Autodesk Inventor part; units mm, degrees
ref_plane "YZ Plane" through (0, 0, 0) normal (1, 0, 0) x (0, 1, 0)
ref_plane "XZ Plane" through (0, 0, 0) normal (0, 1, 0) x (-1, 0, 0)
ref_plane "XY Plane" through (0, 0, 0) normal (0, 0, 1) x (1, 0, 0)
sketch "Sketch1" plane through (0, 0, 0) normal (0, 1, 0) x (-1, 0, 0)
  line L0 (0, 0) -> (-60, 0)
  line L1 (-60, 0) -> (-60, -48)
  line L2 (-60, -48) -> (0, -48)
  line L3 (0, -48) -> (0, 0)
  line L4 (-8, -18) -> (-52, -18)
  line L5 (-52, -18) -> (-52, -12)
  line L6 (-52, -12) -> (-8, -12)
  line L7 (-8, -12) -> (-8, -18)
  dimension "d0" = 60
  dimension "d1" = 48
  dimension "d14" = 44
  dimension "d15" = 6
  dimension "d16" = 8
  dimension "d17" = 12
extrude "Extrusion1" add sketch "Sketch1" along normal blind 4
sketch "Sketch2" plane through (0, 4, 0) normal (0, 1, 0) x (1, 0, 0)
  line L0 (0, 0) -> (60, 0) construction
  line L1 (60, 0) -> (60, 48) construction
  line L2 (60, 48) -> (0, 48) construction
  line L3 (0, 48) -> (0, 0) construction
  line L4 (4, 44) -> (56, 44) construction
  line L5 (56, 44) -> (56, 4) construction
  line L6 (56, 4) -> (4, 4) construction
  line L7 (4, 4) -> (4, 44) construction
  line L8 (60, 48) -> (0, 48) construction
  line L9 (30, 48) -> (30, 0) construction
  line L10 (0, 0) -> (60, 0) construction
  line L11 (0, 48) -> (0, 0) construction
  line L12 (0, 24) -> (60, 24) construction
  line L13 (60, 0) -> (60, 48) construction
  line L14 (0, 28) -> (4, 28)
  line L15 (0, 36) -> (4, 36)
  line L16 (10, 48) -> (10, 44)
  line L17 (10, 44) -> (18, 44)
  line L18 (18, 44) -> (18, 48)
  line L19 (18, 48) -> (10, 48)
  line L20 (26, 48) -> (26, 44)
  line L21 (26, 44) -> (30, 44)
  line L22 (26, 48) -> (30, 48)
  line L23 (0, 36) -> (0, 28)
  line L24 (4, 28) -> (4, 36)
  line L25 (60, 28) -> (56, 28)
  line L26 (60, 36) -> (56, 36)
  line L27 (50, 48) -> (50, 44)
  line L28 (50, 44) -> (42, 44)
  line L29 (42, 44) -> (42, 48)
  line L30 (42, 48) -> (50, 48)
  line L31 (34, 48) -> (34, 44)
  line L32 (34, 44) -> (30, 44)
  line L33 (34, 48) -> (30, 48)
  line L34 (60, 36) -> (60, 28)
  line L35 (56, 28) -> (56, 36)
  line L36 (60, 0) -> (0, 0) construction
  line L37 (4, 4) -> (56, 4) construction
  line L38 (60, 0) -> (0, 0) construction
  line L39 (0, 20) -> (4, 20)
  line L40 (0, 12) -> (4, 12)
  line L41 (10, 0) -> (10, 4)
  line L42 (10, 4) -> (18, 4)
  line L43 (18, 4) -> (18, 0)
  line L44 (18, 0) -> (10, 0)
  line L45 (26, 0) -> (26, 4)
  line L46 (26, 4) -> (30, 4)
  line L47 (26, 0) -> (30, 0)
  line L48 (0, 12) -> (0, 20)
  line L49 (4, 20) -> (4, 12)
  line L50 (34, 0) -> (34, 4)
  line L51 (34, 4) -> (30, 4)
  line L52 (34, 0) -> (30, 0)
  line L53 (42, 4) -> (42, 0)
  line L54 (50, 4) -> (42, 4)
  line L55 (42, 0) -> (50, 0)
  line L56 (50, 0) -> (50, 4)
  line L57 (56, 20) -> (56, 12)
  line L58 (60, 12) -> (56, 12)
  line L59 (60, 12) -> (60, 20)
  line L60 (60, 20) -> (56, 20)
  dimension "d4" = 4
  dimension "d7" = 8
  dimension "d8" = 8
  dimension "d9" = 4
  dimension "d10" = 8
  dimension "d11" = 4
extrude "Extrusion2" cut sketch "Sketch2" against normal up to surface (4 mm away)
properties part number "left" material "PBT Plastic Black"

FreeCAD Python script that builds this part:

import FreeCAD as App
import Part
import Sketcher
from FreeCAD import Vector

doc = App.newDocument("Part")
body = doc.addObject("PartDesign::Body", "Body")

# Sketch on XZ plane
sketch1 = body.newObject("Sketcher::SketchObject", "Sketch")
sketch1.AttachmentSupport = (doc.getObject("XZ_Plane"), [""])
sketch1.MapMode = "FlatFace"
sketch1.addGeometry([
    Part.LineSegment(Vector(0, -48, 0), Vector(0, 0, 0)),  # 0
    Part.LineSegment(Vector(0, 0, 0), Vector(60, 0, 0)),  # 1
    Part.LineSegment(Vector(60, 0, 0), Vector(60, -48, 0)),  # 2
    Part.LineSegment(Vector(60, -48, 0), Vector(0, -48, 0)),  # 3
    Part.LineSegment(Vector(8, -12, 0), Vector(8, -18, 0)),  # 4
    Part.LineSegment(Vector(8, -18, 0), Vector(52, -18, 0)),  # 5
    Part.LineSegment(Vector(52, -18, 0), Vector(52, -12, 0)),  # 6
    Part.LineSegment(Vector(52, -12, 0), Vector(8, -12, 0)),  # 7
], False)
sketch1.addConstraint([
    Sketcher.Constraint("Coincident", 0, 2, 1, 1),
    Sketcher.Constraint("Coincident", 1, 2, 2, 1),
    Sketcher.Constraint("Coincident", 2, 2, 3, 1),
    Sketcher.Constraint("Coincident", 3, 2, 0, 1),
    Sketcher.Constraint("Coincident", 4, 2, 5, 1),
    Sketcher.Constraint("Coincident", 5, 2, 6, 1),
    Sketcher.Constraint("Coincident", 6, 2, 7, 1),
    Sketcher.Constraint("Coincident", 7, 2, 4, 1),
    Sketcher.Constraint("Vertical", 0),
    Sketcher.Constraint("Horizontal", 1),
    Sketcher.Constraint("Vertical", 2),
    Sketcher.Constraint("Horizontal", 3),
    Sketcher.Constraint("Vertical", 4),
    Sketcher.Constraint("Horizontal", 5),
    Sketcher.Constraint("Vertical", 6),
    Sketcher.Constraint("Horizontal", 7),
    Sketcher.Constraint("Coincident", 0, 2, -1, 1),
    Sketcher.Constraint("DistanceX", 1, 1, 1, 2, 60.0),
    Sketcher.Constraint("DistanceX", 5, 1, 5, 2, 44.0),
    Sketcher.Constraint("DistanceY", 0, 1, 0, 2, 48.0),
    Sketcher.Constraint("DistanceY", 4, 2, 4, 1, 6.0),
    Sketcher.Constraint("DistanceX", -1, 1, 4, 2, 8.0),
    Sketcher.Constraint("DistanceY", 6, 2, -1, 1, 12.0),
])
pad1 = body.newObject("PartDesign::Pad", "Pad")
pad1.Profile = sketch1
pad1.Length = 4
pad1.Reversed = True

# Sketch on XZ plane
sketch2 = body.newObject("Sketcher::SketchObject", "Sketch001")
sketch2.AttachmentSupport = (doc.getObject("XZ_Plane"), [""])
sketch2.MapMode = "FlatFace"
sketch2.AttachmentOffset = App.Placement(Vector(0, 0, -4), App.Rotation())
sketch2.addGeometry([
    Part.LineSegment(Vector(0, -36, 0), Vector(0, -28, 0)),  # 0
    Part.LineSegment(Vector(0, -28, 0), Vector(4, -28, 0)),  # 1
    Part.LineSegment(Vector(4, -28, 0), Vector(4, -36, 0)),  # 2
    Part.LineSegment(Vector(4, -36, 0), Vector(0, -36, 0)),  # 3
    Part.LineSegment(Vector(18, -48, 0), Vector(10, -48, 0)),  # 4
    Part.LineSegment(Vector(10, -48, 0), Vector(10, -44, 0)),  # 5
    Part.LineSegment(Vector(10, -44, 0), Vector(18, -44, 0)),  # 6
    Part.LineSegment(Vector(18, -44, 0), Vector(18, -48, 0)),  # 7
    Part.LineSegment(Vector(34, -48, 0), Vector(26, -48, 0)),  # 8
    Part.LineSegment(Vector(26, -48, 0), Vector(26, -44, 0)),  # 9
    Part.LineSegment(Vector(26, -44, 0), Vector(34, -44, 0)),  # 10
    Part.LineSegment(Vector(34, -44, 0), Vector(34, -48, 0)),  # 11
    Part.LineSegment(Vector(56, -28, 0), Vector(60, -28, 0)),  # 12
    Part.LineSegment(Vector(60, -28, 0), Vector(60, -36, 0)),  # 13
    Part.LineSegment(Vector(60, -36, 0), Vector(56, -36, 0)),  # 14
    Part.LineSegment(Vector(56, -36, 0), Vector(56, -28, 0)),  # 15
    Part.LineSegment(Vector(50, -44, 0), Vector(50, -48, 0)),  # 16
    Part.LineSegment(Vector(50, -48, 0), Vector(42, -48, 0)),  # 17
    Part.LineSegment(Vector(42, -48, 0), Vector(42, -44, 0)),  # 18
    Part.LineSegment(Vector(42, -44, 0), Vector(50, -44, 0)),  # 19
    Part.LineSegment(Vector(4, -20, 0), Vector(0, -20, 0)),  # 20
    Part.LineSegment(Vector(0, -20, 0), Vector(0, -12, 0)),  # 21
    Part.LineSegment(Vector(0, -12, 0), Vector(4, -12, 0)),  # 22
    Part.LineSegment(Vector(4, -12, 0), Vector(4, -20, 0)),  # 23
    Part.LineSegment(Vector(10, -4, 0), Vector(10, 0, 0)),  # 24
    Part.LineSegment(Vector(10, 0, 0), Vector(18, 0, 0)),  # 25
    Part.LineSegment(Vector(18, 0, 0), Vector(18, -4, 0)),  # 26
    Part.LineSegment(Vector(18, -4, 0), Vector(10, -4, 0)),  # 27
    Part.LineSegment(Vector(26, -4, 0), Vector(26, 0, 0)),  # 28
    Part.LineSegment(Vector(26, 0, 0), Vector(34, 0, 0)),  # 29
    Part.LineSegment(Vector(34, 0, 0), Vector(34, -4, 0)),  # 30
    Part.LineSegment(Vector(34, -4, 0), Vector(26, -4, 0)),  # 31
    Part.LineSegment(Vector(50, -4, 0), Vector(42, -4, 0)),  # 32
    Part.LineSegment(Vector(42, -4, 0), Vector(42, 0, 0)),  # 33
    Part.LineSegment(Vector(42, 0, 0), Vector(50, 0, 0)),  # 34
    Part.LineSegment(Vector(50, 0, 0), Vector(50, -4, 0)),  # 35
    Part.LineSegment(Vector(60, -20, 0), Vector(56, -20, 0)),  # 36
    Part.LineSegment(Vector(56, -20, 0), Vector(56, -12, 0)),  # 37
    Part.LineSegment(Vector(56, -12, 0), Vector(60, -12, 0)),  # 38
    Part.LineSegment(Vector(60, -12, 0), Vector(60, -20, 0)),  # 39
], False)
sketch2.addConstraint([
    Sketcher.Constraint("Coincident", 0, 2, 1, 1),
    Sketcher.Constraint("Coincident", 1, 2, 2, 1),
    Sketcher.Constraint("Coincident", 2, 2, 3, 1),
    Sketcher.Constraint("Coincident", 3, 2, 0, 1),
    Sketcher.Constraint("Coincident", 4, 2, 5, 1),
    Sketcher.Constraint("Coincident", 5, 2, 6, 1),
    Sketcher.Constraint("Coincident", 6, 2, 7, 1),
    Sketcher.Constraint("Coincident", 7, 2, 4, 1),
    Sketcher.Constraint("Coincident", 8, 2, 9, 1),
    Sketcher.Constraint("Coincident", 9, 2, 10, 1),
    Sketcher.Constraint("Coincident", 10, 2, 11, 1),
    Sketcher.Constraint("Coincident", 11, 2, 8, 1),
    Sketcher.Constraint("Coincident", 12, 2, 13, 1),
    Sketcher.Constraint("Coincident", 13, 2, 14, 1),
    Sketcher.Constraint("Coincident", 14, 2, 15, 1),
    Sketcher.Constraint("Coincident", 15, 2, 12, 1),
    Sketcher.Constraint("Coincident", 16, 2, 17, 1),
    Sketcher.Constraint("Coincident", 17, 2, 18, 1),
    Sketcher.Constraint("Coincident", 18, 2, 19, 1),
    Sketcher.Constraint("Coincident", 19, 2, 16, 1),
    Sketcher.Constraint("Coincident", 20, 2, 21, 1),
    Sketcher.Constraint("Coincident", 21, 2, 22, 1),
    Sketcher.Constraint("Coincident", 22, 2, 23, 1),
    Sketcher.Constraint("Coincident", 23, 2, 20, 1),
    Sketcher.Constraint("Coincident", 24, 2, 25, 1),
    Sketcher.Constraint("Coincident", 25, 2, 26, 1),
    Sketcher.Constraint("Coincident", 26, 2, 27, 1),
    Sketcher.Constraint("Coincident", 27, 2, 24, 1),
    Sketcher.Constraint("Coincident", 28, 2, 29, 1),
    Sketcher.Constraint("Coincident", 29, 2, 30, 1),
    Sketcher.Constraint("Coincident", 30, 2, 31, 1),
    Sketcher.Constraint("Coincident", 31, 2, 28, 1),
    Sketcher.Constraint("Coincident", 32, 2, 33, 1),
    Sketcher.Constraint("Coincident", 33, 2, 34, 1),
    Sketcher.Constraint("Coincident", 34, 2, 35, 1),
    Sketcher.Constraint("Coincident", 35, 2, 32, 1),
    Sketcher.Constraint("Coincident", 36, 2, 37, 1),
    Sketcher.Constraint("Coincident", 37, 2, 38, 1),
    Sketcher.Constraint("Coincident", 38, 2, 39, 1),
    Sketcher.Constraint("Coincident", 39, 2, 36, 1),
    Sketcher.Constraint("Vertical", 0),
    Sketcher.Constraint("Horizontal", 1),
    Sketcher.Constraint("Vertical", 2),
    Sketcher.Constraint("Horizontal", 3),
    Sketcher.Constraint("Horizontal", 4),
    Sketcher.Constraint("Vertical", 5),
    Sketcher.Constraint("Horizontal", 6),
    Sketcher.Constraint("Vertical", 7),
    Sketcher.Constraint("Horizontal", 8),
    Sketcher.Constraint("Vertical", 9),
    Sketcher.Constraint("Horizontal", 10),
    Sketcher.Constraint("Vertical", 11),
    Sketcher.Constraint("Horizontal", 12),
    Sketcher.Constraint("Vertical", 13),
    Sketcher.Constraint("Horizontal", 14),
    Sketcher.Constraint("Vertical", 15),
    Sketcher.Constraint("Vertical", 16),
    Sketcher.Constraint("Horizontal", 17),
    Sketcher.Constraint("Vertical", 18),
    Sketcher.Constraint("Horizontal", 19),
    Sketcher.Constraint("Horizontal", 20),
    Sketcher.Constraint("Vertical", 21),
    Sketcher.Constraint("Horizontal", 22),
    Sketcher.Constraint("Vertical", 23),
    Sketcher.Constraint("Vertical", 24),
    Sketcher.Constraint("Horizontal", 25),
    Sketcher.Constraint("Vertical", 26),
    Sketcher.Constraint("Horizontal", 27),
    Sketcher.Constraint("Vertical", 28),
    Sketcher.Constraint("Horizontal", 29),
    Sketcher.Constraint("Vertical", 30),
    Sketcher.Constraint("Horizontal", 31),
    Sketcher.Constraint("Horizontal", 32),
    Sketcher.Constraint("Vertical", 33),
    Sketcher.Constraint("Horizontal", 34),
    Sketcher.Constraint("Vertical", 35),
    Sketcher.Constraint("Horizontal", 36),
    Sketcher.Constraint("Vertical", 37),
    Sketcher.Constraint("Horizontal", 38),
    Sketcher.Constraint("Vertical", 39),
    Sketcher.Constraint("PointOnObject", 0, 2, -2),
    Sketcher.Constraint("PointOnObject", 20, 2, -2),
    Sketcher.Constraint("PointOnObject", 24, 2, -1),
    Sketcher.Constraint("PointOnObject", 28, 2, -1),
    Sketcher.Constraint("PointOnObject", 33, 2, -1),
    Sketcher.Constraint("Horizontal", 7, 2, 8, 2),
    Sketcher.Constraint("Horizontal", 6, 2, 9, 2),
    Sketcher.Constraint("Horizontal", 1, 2, 12, 2),
    Sketcher.Constraint("Horizontal", 3, 2, 13, 2),
    Sketcher.Constraint("Horizontal", 11, 2, 16, 2),
    Sketcher.Constraint("Horizontal", 10, 2, 18, 2),
    Sketcher.Constraint("Horizontal", 27, 2, 30, 2),
    Sketcher.Constraint("Horizontal", 31, 2, 32, 2),
    Sketcher.Constraint("Horizontal", 23, 2, 36, 2),
    Sketcher.Constraint("Horizontal", 22, 2, 37, 2),
    Sketcher.Constraint("Vertical", 2, 2, 22, 2),
    Sketcher.Constraint("Vertical", 5, 2, 24, 2),
    Sketcher.Constraint("Vertical", 7, 2, 25, 2),
    Sketcher.Constraint("Vertical", 9, 2, 28, 2),
    Sketcher.Constraint("Vertical", 11, 2, 29, 2),
    Sketcher.Constraint("Vertical", 18, 2, 32, 2),
    Sketcher.Constraint("Vertical", 19, 2, 34, 2),
    Sketcher.Constraint("Vertical", 15, 2, 36, 2),
    Sketcher.Constraint("Vertical", 13, 2, 38, 2),
    Sketcher.Constraint("Equal", 6, 8),
    Sketcher.Constraint("Equal", 3, 12),
    Sketcher.Constraint("Equal", 10, 17),
    Sketcher.Constraint("Equal", 34, 0),
    Sketcher.Constraint("Equal", 38, 5),
    Sketcher.Constraint("Equal", 15, 21),
    Sketcher.Constraint("Equal", 18, 24),
    Sketcher.Constraint("DistanceX", 1, 1, 1, 2, 4.0),
    Sketcher.Constraint("DistanceX", 4, 2, 4, 1, 8.0),
    Sketcher.Constraint("DistanceY", 5, 2, 2, 2, 8.0),
    Sketcher.Constraint("DistanceX", 7, 2, 8, 2, 8.0),
    Sketcher.Constraint("DistanceX", 11, 2, 17, 2, 8.0),
    Sketcher.Constraint("DistanceY", 0, 2, 20, 2, 8.0),
    Sketcher.Constraint("DistanceY", 22, 2, 26, 2, 8.0),
    Sketcher.Constraint("DistanceX", -1, 1, 4, 2, 10.0),
    Sketcher.Constraint("DistanceX", -1, 1, 12, 2, 60.0),
])
pocket1 = body.newObject("PartDesign::Pocket", "Pocket")
pocket1.Profile = sketch2
pocket1.Length = 4
pocket1.Reversed = True

doc.recompute()
